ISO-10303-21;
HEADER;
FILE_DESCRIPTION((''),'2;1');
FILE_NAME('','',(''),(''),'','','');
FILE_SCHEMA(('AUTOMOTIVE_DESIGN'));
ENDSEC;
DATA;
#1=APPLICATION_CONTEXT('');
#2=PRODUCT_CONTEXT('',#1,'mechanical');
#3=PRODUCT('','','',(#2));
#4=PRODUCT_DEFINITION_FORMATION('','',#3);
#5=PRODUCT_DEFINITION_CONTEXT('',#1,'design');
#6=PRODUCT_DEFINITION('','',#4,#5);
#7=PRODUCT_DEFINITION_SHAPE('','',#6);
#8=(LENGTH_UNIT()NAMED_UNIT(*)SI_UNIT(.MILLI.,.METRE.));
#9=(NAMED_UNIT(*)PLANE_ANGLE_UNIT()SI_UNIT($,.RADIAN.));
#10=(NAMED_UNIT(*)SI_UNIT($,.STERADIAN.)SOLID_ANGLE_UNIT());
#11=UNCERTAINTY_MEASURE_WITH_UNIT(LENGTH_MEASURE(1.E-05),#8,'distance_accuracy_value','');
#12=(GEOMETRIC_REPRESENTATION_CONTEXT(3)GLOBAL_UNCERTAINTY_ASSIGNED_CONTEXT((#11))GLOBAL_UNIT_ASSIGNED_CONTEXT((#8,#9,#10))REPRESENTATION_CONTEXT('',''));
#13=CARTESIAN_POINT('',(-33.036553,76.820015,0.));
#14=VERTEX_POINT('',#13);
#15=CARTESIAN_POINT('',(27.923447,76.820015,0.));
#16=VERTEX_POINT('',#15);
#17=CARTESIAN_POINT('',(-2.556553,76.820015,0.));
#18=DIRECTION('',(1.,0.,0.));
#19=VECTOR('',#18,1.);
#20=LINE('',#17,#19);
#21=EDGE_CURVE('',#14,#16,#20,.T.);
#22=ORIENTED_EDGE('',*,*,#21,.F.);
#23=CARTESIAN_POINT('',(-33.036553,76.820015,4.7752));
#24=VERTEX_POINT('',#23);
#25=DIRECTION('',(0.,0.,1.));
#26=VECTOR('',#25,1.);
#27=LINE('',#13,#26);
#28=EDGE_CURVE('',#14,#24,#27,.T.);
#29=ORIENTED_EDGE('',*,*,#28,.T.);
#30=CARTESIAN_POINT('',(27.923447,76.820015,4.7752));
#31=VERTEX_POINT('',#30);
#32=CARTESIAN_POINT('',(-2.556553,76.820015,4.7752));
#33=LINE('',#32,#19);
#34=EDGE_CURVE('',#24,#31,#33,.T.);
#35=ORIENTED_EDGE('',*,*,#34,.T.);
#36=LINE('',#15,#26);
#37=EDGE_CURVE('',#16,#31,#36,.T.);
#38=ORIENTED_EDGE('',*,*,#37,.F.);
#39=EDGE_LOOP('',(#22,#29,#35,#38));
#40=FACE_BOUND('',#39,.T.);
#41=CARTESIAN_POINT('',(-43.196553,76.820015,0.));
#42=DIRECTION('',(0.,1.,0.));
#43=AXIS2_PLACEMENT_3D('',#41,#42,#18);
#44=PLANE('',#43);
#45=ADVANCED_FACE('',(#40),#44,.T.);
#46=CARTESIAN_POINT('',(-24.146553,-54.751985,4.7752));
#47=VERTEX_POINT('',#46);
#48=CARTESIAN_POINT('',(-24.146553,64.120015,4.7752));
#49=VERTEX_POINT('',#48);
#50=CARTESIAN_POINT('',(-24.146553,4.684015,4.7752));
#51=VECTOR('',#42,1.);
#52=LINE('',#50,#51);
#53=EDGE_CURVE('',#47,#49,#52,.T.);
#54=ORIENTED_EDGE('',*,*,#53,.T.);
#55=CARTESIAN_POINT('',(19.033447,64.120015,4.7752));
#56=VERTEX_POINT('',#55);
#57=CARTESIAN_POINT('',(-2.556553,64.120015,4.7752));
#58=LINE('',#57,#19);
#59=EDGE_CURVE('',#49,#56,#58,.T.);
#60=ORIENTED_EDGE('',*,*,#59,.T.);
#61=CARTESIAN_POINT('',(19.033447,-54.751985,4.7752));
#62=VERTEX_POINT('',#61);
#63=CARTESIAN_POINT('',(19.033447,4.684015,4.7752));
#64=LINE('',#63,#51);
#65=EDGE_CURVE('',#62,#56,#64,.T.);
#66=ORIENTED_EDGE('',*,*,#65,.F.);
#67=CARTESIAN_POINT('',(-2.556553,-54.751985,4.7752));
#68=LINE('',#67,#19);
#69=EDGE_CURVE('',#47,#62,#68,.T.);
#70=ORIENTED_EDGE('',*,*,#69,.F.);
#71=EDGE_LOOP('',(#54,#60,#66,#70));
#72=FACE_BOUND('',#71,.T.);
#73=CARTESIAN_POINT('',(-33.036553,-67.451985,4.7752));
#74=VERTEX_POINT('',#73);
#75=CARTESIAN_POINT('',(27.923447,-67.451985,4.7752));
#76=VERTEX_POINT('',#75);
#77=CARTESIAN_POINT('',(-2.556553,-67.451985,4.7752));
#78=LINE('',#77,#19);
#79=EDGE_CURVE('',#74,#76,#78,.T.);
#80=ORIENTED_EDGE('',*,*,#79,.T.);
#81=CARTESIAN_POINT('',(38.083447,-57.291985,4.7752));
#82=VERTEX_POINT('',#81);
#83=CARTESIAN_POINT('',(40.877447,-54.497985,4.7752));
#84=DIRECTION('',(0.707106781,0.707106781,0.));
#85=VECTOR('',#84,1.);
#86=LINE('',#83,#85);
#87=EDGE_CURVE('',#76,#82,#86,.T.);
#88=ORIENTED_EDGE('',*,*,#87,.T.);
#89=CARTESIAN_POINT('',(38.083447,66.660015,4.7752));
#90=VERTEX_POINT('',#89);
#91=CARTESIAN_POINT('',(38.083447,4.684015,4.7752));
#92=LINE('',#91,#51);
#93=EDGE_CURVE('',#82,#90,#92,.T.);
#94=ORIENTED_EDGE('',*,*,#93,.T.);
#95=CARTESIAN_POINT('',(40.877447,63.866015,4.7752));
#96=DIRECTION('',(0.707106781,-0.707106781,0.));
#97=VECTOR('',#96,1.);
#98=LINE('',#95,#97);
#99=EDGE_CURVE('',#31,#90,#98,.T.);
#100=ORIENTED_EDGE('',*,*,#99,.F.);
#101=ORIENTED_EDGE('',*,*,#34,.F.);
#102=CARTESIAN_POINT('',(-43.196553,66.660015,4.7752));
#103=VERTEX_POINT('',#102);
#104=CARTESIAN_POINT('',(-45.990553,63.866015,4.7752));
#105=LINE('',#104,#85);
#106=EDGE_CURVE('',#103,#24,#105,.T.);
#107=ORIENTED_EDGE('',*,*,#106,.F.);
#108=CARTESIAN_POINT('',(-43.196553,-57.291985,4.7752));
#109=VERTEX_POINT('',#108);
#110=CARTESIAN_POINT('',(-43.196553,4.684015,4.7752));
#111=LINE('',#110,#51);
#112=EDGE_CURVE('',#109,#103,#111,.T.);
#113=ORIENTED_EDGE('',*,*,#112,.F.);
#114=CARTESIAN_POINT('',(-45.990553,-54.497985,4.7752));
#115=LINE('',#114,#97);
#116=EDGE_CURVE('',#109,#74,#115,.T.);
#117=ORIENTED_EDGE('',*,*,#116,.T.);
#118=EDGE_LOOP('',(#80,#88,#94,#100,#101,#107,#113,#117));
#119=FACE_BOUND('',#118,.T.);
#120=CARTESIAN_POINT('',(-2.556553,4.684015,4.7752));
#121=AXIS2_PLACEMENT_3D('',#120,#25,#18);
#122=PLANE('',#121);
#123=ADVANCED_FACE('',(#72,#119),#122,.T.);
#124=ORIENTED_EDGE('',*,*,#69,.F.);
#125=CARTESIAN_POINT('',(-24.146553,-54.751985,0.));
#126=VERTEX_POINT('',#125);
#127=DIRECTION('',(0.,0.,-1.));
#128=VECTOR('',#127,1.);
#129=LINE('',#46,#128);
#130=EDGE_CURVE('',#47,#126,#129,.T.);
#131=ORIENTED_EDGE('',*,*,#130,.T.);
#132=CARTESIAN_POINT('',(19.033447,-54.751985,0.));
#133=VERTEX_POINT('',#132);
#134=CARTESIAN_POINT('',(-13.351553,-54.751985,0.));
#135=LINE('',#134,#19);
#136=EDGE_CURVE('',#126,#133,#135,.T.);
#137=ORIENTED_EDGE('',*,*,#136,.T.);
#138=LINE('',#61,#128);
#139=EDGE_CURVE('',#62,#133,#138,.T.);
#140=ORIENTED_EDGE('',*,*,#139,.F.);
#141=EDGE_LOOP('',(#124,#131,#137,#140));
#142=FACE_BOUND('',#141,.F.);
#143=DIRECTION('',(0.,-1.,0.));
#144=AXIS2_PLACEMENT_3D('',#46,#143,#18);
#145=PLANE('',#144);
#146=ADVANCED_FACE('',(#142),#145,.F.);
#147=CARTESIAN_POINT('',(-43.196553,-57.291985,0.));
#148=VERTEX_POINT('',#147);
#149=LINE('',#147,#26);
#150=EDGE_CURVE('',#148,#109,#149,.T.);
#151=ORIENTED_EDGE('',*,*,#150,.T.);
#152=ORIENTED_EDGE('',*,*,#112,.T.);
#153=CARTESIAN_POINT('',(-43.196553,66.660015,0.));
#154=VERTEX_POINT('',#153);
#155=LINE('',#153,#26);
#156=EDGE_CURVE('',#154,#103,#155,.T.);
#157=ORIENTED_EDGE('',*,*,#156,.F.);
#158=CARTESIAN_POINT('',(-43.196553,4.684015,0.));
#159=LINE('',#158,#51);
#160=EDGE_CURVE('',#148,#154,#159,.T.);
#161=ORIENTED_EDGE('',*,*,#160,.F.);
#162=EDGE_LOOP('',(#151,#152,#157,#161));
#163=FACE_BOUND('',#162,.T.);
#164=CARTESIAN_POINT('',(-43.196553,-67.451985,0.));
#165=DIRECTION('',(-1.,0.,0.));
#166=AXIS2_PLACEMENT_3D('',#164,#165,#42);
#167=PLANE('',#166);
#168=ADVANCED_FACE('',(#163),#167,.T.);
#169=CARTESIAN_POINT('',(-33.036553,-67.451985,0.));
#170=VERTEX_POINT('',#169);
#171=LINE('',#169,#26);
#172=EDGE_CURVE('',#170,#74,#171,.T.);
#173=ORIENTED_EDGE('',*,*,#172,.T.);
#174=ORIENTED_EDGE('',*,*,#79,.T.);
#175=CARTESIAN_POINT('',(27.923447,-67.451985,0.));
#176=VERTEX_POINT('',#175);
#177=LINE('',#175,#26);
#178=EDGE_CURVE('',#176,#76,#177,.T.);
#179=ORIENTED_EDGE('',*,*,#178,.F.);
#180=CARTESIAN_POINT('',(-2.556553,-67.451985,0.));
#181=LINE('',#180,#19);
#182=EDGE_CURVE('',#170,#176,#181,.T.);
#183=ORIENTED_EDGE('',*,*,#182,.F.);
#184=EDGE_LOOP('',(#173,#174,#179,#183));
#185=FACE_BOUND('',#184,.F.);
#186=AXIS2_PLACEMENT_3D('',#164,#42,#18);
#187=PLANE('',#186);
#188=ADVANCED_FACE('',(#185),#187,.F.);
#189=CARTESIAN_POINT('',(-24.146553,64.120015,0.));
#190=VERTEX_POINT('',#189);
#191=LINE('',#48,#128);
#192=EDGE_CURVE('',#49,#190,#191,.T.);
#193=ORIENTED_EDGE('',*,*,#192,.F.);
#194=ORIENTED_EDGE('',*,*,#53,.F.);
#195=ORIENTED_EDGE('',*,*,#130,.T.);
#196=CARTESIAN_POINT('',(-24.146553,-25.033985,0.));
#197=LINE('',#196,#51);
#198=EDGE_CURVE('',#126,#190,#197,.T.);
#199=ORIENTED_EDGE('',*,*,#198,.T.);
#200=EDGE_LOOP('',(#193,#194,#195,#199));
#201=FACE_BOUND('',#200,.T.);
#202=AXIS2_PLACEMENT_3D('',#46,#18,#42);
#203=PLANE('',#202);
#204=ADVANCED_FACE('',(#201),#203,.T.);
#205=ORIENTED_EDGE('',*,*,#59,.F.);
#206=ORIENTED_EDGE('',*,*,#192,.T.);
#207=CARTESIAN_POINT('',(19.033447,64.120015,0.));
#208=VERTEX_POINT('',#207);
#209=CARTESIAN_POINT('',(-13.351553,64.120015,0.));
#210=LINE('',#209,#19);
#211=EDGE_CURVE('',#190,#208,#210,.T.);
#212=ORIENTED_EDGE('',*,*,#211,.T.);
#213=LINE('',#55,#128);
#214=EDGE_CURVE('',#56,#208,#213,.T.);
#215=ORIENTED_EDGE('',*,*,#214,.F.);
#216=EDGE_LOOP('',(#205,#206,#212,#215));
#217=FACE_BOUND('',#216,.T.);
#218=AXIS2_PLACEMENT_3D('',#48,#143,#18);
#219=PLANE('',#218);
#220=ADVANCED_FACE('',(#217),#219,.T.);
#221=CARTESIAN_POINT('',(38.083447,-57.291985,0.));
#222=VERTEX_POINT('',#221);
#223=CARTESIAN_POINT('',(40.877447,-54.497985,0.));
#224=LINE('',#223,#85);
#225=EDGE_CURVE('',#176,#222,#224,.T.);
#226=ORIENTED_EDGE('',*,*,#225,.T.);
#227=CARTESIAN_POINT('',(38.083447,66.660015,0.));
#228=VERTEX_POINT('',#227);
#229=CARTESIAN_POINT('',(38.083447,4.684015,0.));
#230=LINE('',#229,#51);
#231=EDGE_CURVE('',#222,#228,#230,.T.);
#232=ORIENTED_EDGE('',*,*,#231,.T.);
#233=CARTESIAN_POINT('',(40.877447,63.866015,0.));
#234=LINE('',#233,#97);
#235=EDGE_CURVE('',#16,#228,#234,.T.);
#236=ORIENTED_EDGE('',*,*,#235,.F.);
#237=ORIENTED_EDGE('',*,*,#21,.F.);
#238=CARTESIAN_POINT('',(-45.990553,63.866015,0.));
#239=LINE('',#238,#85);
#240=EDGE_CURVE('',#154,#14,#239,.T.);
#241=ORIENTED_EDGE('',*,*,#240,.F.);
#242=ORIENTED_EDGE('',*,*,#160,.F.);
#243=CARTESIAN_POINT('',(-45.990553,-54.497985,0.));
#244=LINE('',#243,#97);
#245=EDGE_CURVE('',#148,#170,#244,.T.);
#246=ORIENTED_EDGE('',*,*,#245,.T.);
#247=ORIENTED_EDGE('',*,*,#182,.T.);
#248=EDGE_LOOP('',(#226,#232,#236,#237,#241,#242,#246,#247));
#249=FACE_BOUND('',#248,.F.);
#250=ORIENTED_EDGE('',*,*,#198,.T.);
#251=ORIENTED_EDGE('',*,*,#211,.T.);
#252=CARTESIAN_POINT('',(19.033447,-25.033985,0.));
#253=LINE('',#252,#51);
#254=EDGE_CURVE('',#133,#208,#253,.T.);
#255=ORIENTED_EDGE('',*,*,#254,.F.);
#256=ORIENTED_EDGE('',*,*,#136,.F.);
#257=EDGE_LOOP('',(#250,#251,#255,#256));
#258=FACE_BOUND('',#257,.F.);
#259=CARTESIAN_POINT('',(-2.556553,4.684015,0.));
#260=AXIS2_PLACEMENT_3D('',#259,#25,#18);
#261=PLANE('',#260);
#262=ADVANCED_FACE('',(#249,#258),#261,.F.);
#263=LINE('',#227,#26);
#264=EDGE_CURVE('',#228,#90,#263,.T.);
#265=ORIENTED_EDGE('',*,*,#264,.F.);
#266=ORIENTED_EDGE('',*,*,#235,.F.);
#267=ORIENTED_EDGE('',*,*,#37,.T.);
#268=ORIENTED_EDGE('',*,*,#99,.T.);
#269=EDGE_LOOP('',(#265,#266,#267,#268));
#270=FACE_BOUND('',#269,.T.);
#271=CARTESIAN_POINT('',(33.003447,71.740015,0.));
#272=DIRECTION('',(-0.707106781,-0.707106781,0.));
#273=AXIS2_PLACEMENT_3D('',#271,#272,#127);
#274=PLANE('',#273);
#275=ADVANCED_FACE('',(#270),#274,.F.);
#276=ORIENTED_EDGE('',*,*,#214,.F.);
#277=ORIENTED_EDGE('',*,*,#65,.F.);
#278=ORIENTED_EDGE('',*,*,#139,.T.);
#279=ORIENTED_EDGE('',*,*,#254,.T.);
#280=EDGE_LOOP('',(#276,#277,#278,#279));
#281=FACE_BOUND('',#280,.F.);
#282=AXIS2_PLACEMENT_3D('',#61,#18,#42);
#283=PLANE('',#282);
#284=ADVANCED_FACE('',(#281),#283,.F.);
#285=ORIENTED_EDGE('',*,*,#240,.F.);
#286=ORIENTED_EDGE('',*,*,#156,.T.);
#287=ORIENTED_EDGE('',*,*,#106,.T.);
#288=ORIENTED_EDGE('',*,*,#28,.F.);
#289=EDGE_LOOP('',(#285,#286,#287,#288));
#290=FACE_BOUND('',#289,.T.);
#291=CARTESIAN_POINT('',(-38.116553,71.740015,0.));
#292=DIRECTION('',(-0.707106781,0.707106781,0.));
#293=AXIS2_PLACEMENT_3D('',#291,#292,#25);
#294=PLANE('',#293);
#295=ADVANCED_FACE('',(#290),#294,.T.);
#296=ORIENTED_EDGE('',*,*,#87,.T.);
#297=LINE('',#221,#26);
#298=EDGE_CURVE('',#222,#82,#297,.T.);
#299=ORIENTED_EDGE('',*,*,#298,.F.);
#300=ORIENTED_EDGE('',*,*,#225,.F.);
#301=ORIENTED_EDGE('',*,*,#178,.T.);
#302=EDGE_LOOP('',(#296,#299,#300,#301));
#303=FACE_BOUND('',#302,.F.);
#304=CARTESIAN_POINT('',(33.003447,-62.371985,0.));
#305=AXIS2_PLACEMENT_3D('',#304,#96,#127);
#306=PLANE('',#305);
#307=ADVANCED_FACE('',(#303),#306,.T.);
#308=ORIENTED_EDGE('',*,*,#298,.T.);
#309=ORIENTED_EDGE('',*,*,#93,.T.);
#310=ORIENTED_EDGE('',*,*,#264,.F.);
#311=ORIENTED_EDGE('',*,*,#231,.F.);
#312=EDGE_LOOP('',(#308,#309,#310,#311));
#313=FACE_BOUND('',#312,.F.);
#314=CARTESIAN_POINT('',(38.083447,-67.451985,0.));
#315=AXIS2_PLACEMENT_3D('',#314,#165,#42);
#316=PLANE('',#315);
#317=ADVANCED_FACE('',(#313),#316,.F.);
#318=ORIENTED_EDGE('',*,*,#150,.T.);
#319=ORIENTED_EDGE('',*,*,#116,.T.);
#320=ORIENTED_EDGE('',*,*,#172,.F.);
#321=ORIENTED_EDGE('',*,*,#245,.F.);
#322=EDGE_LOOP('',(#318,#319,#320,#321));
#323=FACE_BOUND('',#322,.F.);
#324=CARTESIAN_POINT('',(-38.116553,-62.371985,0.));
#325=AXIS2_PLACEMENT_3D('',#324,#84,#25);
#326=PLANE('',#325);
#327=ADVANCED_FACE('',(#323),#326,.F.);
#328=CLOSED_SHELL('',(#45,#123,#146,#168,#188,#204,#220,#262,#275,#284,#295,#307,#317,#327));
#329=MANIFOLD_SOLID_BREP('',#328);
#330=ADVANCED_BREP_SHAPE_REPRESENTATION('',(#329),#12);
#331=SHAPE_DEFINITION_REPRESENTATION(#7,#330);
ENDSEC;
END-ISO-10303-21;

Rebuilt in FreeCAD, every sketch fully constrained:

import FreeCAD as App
import Part
import Sketcher
Q = App.Units.Quantity


def edges_at(feature, points):
    """Names of the edges that pass closest to the given points."""
    edges = feature.Shape.Edges
    near = lambda p: min(range(len(edges)), key=lambda i: edges[i].distToShape(Part.Vertex(*p))[0])
    return sorted({f"Edge{near(p) + 1}" for p in points})


def add_polygon(sketch, points):
    """Adds a closed chain of lines whose ends are joined by coincident constraints."""
    first, n = sketch.GeometryCount, len(points)
    for a, b in zip(points, points[1:] + points[:1]):
        sketch.addGeometry(Part.LineSegment(App.Vector(*a, 0), App.Vector(*b, 0)), False)
    for i in range(n):
        sketch.addConstraint(Sketcher.Constraint("Coincident", first + i, 2, first + (i + 1) % n, 1))

doc = App.newDocument("Part")
params = doc.addObject("Spreadsheet::Sheet", "Params")
for row, (alias, value) in enumerate([
    ("sketch1_width", "3.2 in"),
    ("sketch1_height", "5.68 in"),
    ("pad1_length", "0.188 in"),
    ("sketch2_width", "1.7 in"),
    ("sketch2_height", "4.68 in"),
    ("pocket1_length", "1 in"),
    ("chamfer_size", "0.4 in"),
], start=1):
    params.set(f"A{row}", alias)
    params.set(f"B{row}", "=" + value)
    params.setAlias(f"B{row}", alias)

body = doc.addObject("PartDesign::Body", "Body")

# Sketch on XY plane
sketch1 = doc.addObject("Sketcher::SketchObject", "Sketch")
body.addObject(sketch1)
sketch1.AttachmentSupport = (doc.XY_Plane, [""])
sketch1.MapMode = "FlatFace"
add_polygon(sketch1, [(-43, 77), (-43, -67), (38, -67), (38, 77)])  # lines 0-3
sketch1.addConstraint(Sketcher.Constraint("Vertical", 0))
sketch1.addConstraint(Sketcher.Constraint("Horizontal", 1))
sketch1.addConstraint(Sketcher.Constraint("Vertical", 2))
sketch1.addConstraint(Sketcher.Constraint("Horizontal", 3))
sketch1.addConstraint(Sketcher.Constraint("DistanceX", 1, 1, 1, 2, Q("3.2 in")))
sketch1.addConstraint(Sketcher.Constraint("DistanceY", 0, 2, 0, 1, Q("5.68 in")))
sketch1.addConstraint(Sketcher.Constraint("DistanceX", 0, 2, -1, 1, Q("43.196553 mm")))
sketch1.addConstraint(Sketcher.Constraint("DistanceY", 0, 2, -1, 1, Q("67.451985 mm")))
sketch1.setExpression("Constraints[8]", "Params.sketch1_width")
sketch1.setExpression("Constraints[9]", "Params.sketch1_height")
pad1 = doc.addObject("PartDesign::Pad", "Pad")
body.addObject(pad1)
pad1.Profile = sketch1
pad1.setExpression("Length", "Params.pad1_length")

# Sketch on XY plane
sketch2 = doc.addObject("Sketcher::SketchObject", "Sketch001")
body.addObject(sketch2)
sketch2.AttachmentSupport = (doc.XY_Plane, [""])
sketch2.MapMode = "FlatFace"
sketch2.AttachmentOffset = App.Placement(App.Vector(0, 0, 0.188 * 25.4), App.Rotation())
add_polygon(sketch2, [(-24, 64), (-24, -55), (19, -55), (19, 64)])  # lines 0-3
sketch2.addConstraint(Sketcher.Constraint("Vertical", 0))
sketch2.addConstraint(Sketcher.Constraint("Horizontal", 1))
sketch2.addConstraint(Sketcher.Constraint("Vertical", 2))
sketch2.addConstraint(Sketcher.Constraint("Horizontal", 3))
sketch2.addConstraint(Sketcher.Constraint("DistanceX", 1, 1, 1, 2, Q("1.7 in")))
sketch2.addConstraint(Sketcher.Constraint("DistanceY", 0, 2, 0, 1, Q("4.68 in")))
sketch2.addConstraint(Sketcher.Constraint("DistanceX", 0, 2, -1, 1, Q("24.146553 mm")))
sketch2.addConstraint(Sketcher.Constraint("DistanceY", 0, 2, -1, 1, Q("54.751985 mm")))
sketch2.setExpression("Constraints[8]", "Params.sketch2_width")
sketch2.setExpression("Constraints[9]", "Params.sketch2_height")
pocket1 = doc.addObject("PartDesign::Pocket", "Pocket")
body.addObject(pocket1)
pocket1.Profile = sketch2
pocket1.setExpression("Length", "Params.pocket1_length")
doc.recompute()

chamfer = doc.addObject("PartDesign::Chamfer", "Chamfer")
body.addObject(chamfer)
chamfer.Base = (pocket1, edges_at(pocket1, [
    (38.083, -67.452, 2.388),
    (-43.197, -67.452, 2.388),
    (38.083, 76.82, 2.388),
    (-43.197, 76.82, 2.388),
]))
chamfer.setExpression("Size", "Params.chamfer_size")

doc.recompute()
